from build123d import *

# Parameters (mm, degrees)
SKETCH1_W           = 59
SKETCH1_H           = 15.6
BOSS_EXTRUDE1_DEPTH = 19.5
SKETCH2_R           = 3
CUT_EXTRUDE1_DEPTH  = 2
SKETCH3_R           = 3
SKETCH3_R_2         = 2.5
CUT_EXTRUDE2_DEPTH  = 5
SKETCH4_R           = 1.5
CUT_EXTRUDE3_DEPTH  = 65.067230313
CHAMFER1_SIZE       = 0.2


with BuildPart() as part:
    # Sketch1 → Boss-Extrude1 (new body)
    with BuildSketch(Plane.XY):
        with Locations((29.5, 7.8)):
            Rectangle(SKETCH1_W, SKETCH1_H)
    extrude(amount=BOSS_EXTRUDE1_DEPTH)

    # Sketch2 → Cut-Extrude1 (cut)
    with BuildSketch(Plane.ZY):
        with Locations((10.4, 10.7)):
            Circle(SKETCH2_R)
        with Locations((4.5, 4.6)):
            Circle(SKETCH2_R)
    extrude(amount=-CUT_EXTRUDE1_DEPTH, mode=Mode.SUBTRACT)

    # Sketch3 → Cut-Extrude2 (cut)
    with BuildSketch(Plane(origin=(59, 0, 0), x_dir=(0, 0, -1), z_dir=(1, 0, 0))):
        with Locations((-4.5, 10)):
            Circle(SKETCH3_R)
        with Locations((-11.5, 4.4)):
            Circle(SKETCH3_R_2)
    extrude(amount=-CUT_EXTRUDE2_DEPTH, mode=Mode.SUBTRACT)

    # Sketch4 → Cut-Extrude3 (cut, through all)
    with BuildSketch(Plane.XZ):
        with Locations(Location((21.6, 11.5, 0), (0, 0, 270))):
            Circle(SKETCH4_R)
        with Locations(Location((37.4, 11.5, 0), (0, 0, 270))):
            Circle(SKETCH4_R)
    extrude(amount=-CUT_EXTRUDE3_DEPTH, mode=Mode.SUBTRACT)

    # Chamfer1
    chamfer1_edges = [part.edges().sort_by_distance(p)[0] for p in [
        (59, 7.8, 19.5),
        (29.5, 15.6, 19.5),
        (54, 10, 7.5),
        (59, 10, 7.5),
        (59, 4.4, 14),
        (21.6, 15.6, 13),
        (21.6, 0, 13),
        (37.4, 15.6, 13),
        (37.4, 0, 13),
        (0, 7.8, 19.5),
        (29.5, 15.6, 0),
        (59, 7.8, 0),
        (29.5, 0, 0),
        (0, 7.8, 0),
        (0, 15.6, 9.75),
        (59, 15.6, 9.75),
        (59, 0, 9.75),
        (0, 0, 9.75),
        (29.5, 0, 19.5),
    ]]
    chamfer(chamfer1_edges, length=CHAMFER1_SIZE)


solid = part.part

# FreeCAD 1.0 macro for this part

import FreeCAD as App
import Part
import Sketcher
from FreeCAD import Vector
Q = App.Units.Quantity


def edges_at(feature, points):
    """Names of the edges that pass closest to the given points."""
    edges = feature.Shape.Edges
    near = lambda p: min(range(len(edges)), key=lambda i: edges[i].distToShape(Part.Vertex(*p))[0])
    return sorted({f"Edge{near(p) + 1}" for p in points})


def add_polygon(sketch, points):
    """Adds a closed chain of lines whose ends are joined by coincident constraints."""
    first, n = sketch.GeometryCount, len(points)
    for a, b in zip(points, points[1:] + points[:1]):
        sketch.addGeometry(Part.LineSegment(App.Vector(*a, 0), App.Vector(*b, 0)), False)
    for i in range(n):
        sketch.addConstraint(Sketcher.Constraint("Coincident", first + i, 2, first + (i + 1) % n, 1))

doc = App.newDocument("Part")
body = doc.addObject("PartDesign::Body", "Body")

# Sketch on XY plane
sketch1 = body.newObject("Sketcher::SketchObject", "Sketch")
sketch1.AttachmentSupport = (doc.getObject("XY_Plane"), [""])
sketch1.MapMode = "FlatFace"
add_polygon(sketch1, [(0, 16), (0, 0), (59, 0), (59, 16)])  # lines 0-3
sketch1.addConstraint([
    Sketcher.Constraint("Vertical", 0),
    Sketcher.Constraint("Horizontal", 1),
    Sketcher.Constraint("Vertical", 2),
    Sketcher.Constraint("Horizontal", 3),
    Sketcher.Constraint("Coincident", 0, 2, -1, 1),
    Sketcher.Constraint("DistanceX", 1, 1, 1, 2, Q("59 mm")),
    Sketcher.Constraint("DistanceY", 0, 2, 0, 1, Q("15.6 mm")),
])
pad1 = body.newObject("PartDesign::Pad", "Pad")
pad1.Profile = sketch1
pad1.Length = 19.5

# Sketch on YZ plane
sketch2 = body.newObject("Sketcher::SketchObject", "Sketch001")
sketch2.AttachmentSupport = (doc.getObject("YZ_Plane"), [""])
sketch2.MapMode = "FlatFace"
sketch2.addGeometry([
    Part.Circle(Vector(10.7, 10.4, 0), Vector(0, 0, 1), 3),
    Part.Circle(Vector(4.6, 4.5, 0), Vector(0, 0, 1), 3),
], False)
sketch2.addConstraint([
    Sketcher.Constraint("Equal", 0, 1),
    Sketcher.Constraint("Diameter", 0, Q("6 mm")),
    Sketcher.Constraint("DistanceX", -1, 1, 0, 3, Q("10.7 mm")),
    Sketcher.Constraint("DistanceY", -1, 1, 0, 3, Q("10.4 mm")),
    Sketcher.Constraint("DistanceX", -1, 1, 1, 3, Q("4.6 mm")),
    Sketcher.Constraint("DistanceY", -1, 1, 1, 3, Q("4.5 mm")),
])
pocket1 = body.newObject("PartDesign::Pocket", "Pocket")
pocket1.Profile = sketch2
pocket1.Length = 2
pocket1.Reversed = True

# Sketch on YZ plane
sketch3 = body.newObject("Sketcher::SketchObject", "Sketch002")
sketch3.AttachmentSupport = (doc.getObject("YZ_Plane"), [""])
sketch3.MapMode = "FlatFace"
sketch3.AttachmentOffset = App.Placement(Vector(0, 0, 59), App.Rotation())
sketch3.addGeometry([
    Part.Circle(Vector(10, 4.5, 0), Vector(0, 0, 1), 3),
    Part.Circle(Vector(4.4, 11.5, 0), Vector(0, 0, 1), 2.5),
], False)
sketch3.addConstraint([
    Sketcher.Constraint("Diameter", 0, Q("6 mm")),
    Sketcher.Constraint("Diameter", 1, Q("5 mm")),
    Sketcher.Constraint("DistanceX", -1, 1, 0, 3, Q("10 mm")),
    Sketcher.Constraint("DistanceY", 0, 3, 1, 3, Q("7 mm")),
    Sketcher.Constraint("DistanceY", -1, 1, 0, 3, Q("4.5 mm")),
    Sketcher.Constraint("DistanceX", -1, 1, 1, 3, Q("4.4 mm")),
])
pocket2 = body.newObject("PartDesign::Pocket", "Pocket001")
pocket2.Profile = sketch3
pocket2.Length = 5

# Sketch on XZ plane
sketch4 = body.newObject("Sketcher::SketchObject", "Sketch003")
sketch4.AttachmentSupport = (doc.getObject("XZ_Plane"), [""])
sketch4.MapMode = "FlatFace"
sketch4.addGeometry([
    Part.Circle(Vector(21.6, 11.5, 0), Vector(0, 0, 1), 1.5),
    Part.Circle(Vector(37.4, 11.5, 0), Vector(0, 0, 1), 1.5),
], False)
sketch4.addConstraint([
    Sketcher.Constraint("Equal", 0, 1),
    Sketcher.Constraint("Horizontal", 0, 3, 1, 3),
    Sketcher.Constraint("Diameter", 0, Q("3 mm")),
    Sketcher.Constraint("DistanceX", -1, 1, 0, 3, Q("21.6 mm")),
    Sketcher.Constraint("DistanceY", -1, 1, 0, 3, Q("11.5 mm")),
    Sketcher.Constraint("DistanceX", -1, 1, 1, 3, Q("37.4 mm")),
])
pocket3 = body.newObject("PartDesign::Pocket", "Pocket002")
pocket3.Profile = sketch4
pocket3.Type = "ThroughAll"
doc.recompute()

chamfer = body.newObject("PartDesign::Chamfer", "Chamfer")
chamfer.Base = (pocket3, edges_at(pocket3, [
    (59, 7.8, 19.5),
    (29.5, 15.6, 19.5),
    (54, 10, 7.5),
    (59, 10, 7.5),
    (59, 4.4, 14),
    (21.6, 15.6, 13),
    (21.6, 0, 13),
    (37.4, 15.6, 13),
    (37.4, 0, 13),
    (0, 7.8, 19.5),
    (29.5, 15.6, 0),
    (59, 7.8, 0),
    (29.5, 0, 0),
    (0, 7.8, 0),
    (0, 15.6, 9.75),
    (59, 15.6, 9.75),
    (59, 0, 9.75),
    (0, 0, 9.75),
    (29.5, 0, 19.5),
]))
chamfer.Size = 0.2

doc.recompute()
